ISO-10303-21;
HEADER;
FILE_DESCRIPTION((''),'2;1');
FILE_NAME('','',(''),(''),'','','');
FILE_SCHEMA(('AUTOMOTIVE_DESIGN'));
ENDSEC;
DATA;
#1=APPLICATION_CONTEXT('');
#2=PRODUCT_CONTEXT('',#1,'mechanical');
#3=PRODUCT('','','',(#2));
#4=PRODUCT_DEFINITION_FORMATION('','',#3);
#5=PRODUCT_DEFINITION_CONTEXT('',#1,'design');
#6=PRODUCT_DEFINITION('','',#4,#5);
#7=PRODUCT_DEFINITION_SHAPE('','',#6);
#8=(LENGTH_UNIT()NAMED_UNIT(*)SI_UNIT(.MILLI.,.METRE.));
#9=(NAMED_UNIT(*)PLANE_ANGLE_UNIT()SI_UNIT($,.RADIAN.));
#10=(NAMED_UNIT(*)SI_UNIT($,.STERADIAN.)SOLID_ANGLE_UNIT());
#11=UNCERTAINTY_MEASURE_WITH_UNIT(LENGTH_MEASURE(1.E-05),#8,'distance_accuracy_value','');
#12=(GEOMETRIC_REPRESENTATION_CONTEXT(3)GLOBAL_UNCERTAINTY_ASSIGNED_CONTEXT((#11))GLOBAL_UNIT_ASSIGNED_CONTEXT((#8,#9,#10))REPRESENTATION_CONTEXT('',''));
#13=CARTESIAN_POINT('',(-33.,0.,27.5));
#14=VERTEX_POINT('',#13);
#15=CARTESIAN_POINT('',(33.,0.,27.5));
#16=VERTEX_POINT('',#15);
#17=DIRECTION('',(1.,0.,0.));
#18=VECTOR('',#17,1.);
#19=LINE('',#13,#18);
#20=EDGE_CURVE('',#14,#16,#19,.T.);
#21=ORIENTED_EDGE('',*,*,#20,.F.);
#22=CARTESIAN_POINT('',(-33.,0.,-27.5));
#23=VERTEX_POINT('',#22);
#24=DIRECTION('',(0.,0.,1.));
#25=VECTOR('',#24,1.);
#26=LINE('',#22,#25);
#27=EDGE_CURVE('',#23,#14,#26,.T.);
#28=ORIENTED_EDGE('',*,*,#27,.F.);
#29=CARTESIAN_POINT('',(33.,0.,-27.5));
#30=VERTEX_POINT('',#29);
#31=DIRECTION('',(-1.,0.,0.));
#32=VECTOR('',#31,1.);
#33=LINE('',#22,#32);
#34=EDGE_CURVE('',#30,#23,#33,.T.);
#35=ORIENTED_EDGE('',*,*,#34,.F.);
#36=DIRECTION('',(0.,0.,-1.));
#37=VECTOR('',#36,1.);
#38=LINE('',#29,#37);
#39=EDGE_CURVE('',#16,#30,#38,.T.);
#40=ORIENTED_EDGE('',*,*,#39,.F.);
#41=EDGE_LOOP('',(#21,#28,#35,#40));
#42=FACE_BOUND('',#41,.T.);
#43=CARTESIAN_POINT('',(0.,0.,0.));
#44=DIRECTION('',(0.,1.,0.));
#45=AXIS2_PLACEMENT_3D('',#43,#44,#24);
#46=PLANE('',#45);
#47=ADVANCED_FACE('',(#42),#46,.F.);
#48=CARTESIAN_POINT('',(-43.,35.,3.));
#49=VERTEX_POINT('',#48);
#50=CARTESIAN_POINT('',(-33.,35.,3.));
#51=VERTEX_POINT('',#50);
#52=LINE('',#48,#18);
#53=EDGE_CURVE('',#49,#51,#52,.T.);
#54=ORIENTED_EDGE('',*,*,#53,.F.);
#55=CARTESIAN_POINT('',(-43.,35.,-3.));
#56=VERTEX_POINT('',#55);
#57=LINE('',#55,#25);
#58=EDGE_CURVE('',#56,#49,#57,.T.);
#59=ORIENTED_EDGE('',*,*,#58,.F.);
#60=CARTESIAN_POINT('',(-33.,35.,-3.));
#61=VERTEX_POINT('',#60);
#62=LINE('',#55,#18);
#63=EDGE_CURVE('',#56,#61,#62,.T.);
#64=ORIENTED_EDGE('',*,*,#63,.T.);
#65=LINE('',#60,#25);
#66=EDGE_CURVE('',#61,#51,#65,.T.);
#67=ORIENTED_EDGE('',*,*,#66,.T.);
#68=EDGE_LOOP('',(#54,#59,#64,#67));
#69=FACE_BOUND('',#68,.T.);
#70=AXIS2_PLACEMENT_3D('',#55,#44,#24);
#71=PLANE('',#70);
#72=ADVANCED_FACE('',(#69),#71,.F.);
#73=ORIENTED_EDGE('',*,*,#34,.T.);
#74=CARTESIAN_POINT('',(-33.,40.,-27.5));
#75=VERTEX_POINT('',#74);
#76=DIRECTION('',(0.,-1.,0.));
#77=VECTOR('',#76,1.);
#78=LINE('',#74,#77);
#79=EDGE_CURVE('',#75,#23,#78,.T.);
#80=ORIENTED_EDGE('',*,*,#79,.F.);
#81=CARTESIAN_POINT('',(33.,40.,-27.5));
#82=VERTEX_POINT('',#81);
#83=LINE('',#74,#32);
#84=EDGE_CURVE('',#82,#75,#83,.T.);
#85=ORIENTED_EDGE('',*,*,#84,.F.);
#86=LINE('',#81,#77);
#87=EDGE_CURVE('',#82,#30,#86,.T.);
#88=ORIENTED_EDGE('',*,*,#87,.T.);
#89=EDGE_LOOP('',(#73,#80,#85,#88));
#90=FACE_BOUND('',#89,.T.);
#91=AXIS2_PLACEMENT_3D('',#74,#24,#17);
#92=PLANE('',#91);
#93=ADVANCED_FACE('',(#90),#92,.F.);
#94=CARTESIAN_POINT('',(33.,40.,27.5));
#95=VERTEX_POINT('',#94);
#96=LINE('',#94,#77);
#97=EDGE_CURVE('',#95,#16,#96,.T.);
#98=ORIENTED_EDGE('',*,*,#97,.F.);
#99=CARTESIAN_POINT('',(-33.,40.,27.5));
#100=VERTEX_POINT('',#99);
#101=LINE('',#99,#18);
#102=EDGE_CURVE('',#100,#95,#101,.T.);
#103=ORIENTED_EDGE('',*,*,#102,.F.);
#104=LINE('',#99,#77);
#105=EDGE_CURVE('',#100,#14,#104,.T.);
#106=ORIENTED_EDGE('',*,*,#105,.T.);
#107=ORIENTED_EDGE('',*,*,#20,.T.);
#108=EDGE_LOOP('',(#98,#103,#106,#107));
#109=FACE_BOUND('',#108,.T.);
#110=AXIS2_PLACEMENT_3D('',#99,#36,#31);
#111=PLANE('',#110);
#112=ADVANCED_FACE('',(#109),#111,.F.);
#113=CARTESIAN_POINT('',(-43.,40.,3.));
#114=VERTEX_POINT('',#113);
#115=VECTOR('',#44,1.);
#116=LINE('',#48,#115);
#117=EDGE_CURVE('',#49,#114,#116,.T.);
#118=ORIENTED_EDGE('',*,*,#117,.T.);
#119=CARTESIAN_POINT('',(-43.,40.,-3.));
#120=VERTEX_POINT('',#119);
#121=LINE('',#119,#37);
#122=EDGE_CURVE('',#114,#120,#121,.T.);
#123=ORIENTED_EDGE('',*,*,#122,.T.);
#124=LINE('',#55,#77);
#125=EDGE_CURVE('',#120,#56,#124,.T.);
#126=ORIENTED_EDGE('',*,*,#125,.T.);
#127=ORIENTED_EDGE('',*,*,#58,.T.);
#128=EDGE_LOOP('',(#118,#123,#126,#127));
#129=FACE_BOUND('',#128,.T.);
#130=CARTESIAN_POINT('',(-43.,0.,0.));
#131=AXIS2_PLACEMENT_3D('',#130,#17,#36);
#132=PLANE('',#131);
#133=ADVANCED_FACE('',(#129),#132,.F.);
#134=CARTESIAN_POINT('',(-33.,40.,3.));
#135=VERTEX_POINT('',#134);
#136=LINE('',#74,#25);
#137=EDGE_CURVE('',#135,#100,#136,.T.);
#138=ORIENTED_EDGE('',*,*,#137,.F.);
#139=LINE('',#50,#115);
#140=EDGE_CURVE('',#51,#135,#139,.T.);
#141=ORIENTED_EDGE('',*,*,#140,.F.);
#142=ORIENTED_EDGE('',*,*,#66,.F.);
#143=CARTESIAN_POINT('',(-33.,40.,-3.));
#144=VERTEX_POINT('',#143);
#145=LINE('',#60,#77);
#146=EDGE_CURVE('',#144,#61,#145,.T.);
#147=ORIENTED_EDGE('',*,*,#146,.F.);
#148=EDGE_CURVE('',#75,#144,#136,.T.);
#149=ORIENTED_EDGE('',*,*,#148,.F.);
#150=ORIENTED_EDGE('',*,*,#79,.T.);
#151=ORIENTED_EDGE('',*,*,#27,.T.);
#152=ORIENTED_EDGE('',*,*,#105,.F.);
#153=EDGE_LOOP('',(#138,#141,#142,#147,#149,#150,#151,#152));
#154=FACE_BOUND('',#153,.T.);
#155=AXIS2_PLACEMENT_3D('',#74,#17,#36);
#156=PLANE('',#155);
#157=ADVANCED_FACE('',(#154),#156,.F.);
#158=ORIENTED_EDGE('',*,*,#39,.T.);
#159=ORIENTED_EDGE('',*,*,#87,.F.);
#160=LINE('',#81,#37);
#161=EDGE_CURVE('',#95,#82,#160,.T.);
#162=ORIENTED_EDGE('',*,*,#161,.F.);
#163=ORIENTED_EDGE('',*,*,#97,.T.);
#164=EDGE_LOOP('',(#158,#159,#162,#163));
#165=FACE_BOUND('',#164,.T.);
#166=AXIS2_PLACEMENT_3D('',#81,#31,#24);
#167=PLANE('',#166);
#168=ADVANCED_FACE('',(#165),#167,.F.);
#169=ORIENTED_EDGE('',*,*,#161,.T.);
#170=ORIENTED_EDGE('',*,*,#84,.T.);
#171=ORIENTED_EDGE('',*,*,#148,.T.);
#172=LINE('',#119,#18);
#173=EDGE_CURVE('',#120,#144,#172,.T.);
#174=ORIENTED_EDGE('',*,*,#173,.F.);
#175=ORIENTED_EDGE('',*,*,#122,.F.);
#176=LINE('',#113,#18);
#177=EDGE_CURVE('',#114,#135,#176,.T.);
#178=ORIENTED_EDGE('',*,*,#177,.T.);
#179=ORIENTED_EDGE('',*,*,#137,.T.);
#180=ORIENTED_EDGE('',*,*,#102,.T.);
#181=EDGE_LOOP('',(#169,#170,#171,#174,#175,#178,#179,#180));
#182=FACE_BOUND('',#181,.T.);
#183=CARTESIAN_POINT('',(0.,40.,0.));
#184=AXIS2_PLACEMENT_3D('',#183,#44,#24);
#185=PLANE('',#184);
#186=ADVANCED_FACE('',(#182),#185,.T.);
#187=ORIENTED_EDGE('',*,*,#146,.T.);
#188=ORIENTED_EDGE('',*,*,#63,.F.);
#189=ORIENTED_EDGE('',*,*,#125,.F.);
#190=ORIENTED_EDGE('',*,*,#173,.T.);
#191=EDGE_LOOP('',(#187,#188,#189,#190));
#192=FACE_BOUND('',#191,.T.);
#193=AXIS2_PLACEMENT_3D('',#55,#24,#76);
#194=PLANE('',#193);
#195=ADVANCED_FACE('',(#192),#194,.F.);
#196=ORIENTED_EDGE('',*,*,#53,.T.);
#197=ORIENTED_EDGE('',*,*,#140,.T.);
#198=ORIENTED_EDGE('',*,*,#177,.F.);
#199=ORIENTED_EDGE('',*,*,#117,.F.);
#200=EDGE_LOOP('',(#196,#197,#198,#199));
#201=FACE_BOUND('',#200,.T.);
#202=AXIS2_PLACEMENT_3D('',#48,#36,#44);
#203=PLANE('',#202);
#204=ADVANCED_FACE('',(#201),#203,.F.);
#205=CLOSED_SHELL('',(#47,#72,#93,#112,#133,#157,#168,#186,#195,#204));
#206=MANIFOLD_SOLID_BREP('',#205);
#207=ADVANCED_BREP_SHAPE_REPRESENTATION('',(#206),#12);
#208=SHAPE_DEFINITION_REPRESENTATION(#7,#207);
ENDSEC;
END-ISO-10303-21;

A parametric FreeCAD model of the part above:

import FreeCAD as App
import Part
import Sketcher

doc = App.newDocument("Part")
body = doc.addObject("PartDesign::Body", "Body")

sketch1 = body.newObject("Sketcher::SketchObject", "Sketch")
sketch1.AttachmentSupport = (doc.getObject("XZ_Plane"), [""])
sketch1.MapMode = "FlatFace"
sketch1.addGeometry(Part.LineSegment(App.Vector(-33, -27.5, 0), App.Vector(-33, 27.5, 0)), False)
sketch1.addGeometry(Part.LineSegment(App.Vector(-33, 27.5, 0), App.Vector(33, 27.5, 0)), False)
sketch1.addGeometry(Part.LineSegment(App.Vector(33, 27.5, 0), App.Vector(33, -27.5, 0)), False)
sketch1.addGeometry(Part.LineSegment(App.Vector(33, -27.5, 0), App.Vector(-33, -27.5, 0)), False)
sketch1.addConstraint(Sketcher.Constraint("Coincident", 0, 2, 1, 1))
sketch1.addConstraint(Sketcher.Constraint("Coincident", 1, 2, 2, 1))
sketch1.addConstraint(Sketcher.Constraint("Coincident", 2, 2, 3, 1))
sketch1.addConstraint(Sketcher.Constraint("Coincident", 3, 2, 0, 1))
sketch1.addConstraint(Sketcher.Constraint("Vertical", 0))
sketch1.addConstraint(Sketcher.Constraint("Horizontal", 1))
sketch1.addConstraint(Sketcher.Constraint("Vertical", 2))
sketch1.addConstraint(Sketcher.Constraint("Horizontal", 3))
sketch1.addConstraint(Sketcher.Constraint("Symmetric", 0, 2, 2, 2, -1, 1))
sketch1.addConstraint(Sketcher.Constraint("DistanceX", 1, 1, 1, 2, 66.0))
sketch1.addConstraint(Sketcher.Constraint("DistanceY", 0, 1, 0, 2, 55.0))
pad1 = body.newObject("PartDesign::Pad", "Pad")
pad1.Profile = sketch1
pad1.Length = 40
pad1.Reversed = True

sketch2 = body.newObject("Sketcher::SketchObject", "Sketch001")
sketch2.AttachmentSupport = (doc.getObject("YZ_Plane"), [""])
sketch2.MapMode = "FlatFace"
sketch2.AttachmentOffset = App.Placement(App.Vector(0, 0, -33), App.Rotation())
sketch2.addGeometry(Part.LineSegment(App.Vector(40, -3, 0), App.Vector(35, -3, 0)), False)
sketch2.addGeometry(Part.LineSegment(App.Vector(35, -3, 0), App.Vector(35, 3, 0)), False)
sketch2.addGeometry(Part.LineSegment(App.Vector(35, 3, 0), App.Vector(40, 3, 0)), False)
sketch2.addGeometry(Part.LineSegment(App.Vector(40, 3, 0), App.Vector(40, -3, 0)), False)
sketch2.addConstraint(Sketcher.Constraint("Coincident", 0, 2, 1, 1))
sketch2.addConstraint(Sketcher.Constraint("Coincident", 1, 2, 2, 1))
sketch2.addConstraint(Sketcher.Constraint("Coincident", 2, 2, 3, 1))
sketch2.addConstraint(Sketcher.Constraint("Coincident", 3, 2, 0, 1))
sketch2.addConstraint(Sketcher.Constraint("Horizontal", 0))
sketch2.addConstraint(Sketcher.Constraint("Vertical", 1))
sketch2.addConstraint(Sketcher.Constraint("Horizontal", 2))
sketch2.addConstraint(Sketcher.Constraint("Vertical", 3))
sketch2.addConstraint(Sketcher.Constraint("DistanceX", 0, 2, 0, 1, 5.0))
sketch2.addConstraint(Sketcher.Constraint("DistanceY", 1, 1, 1, 2, 6.0))
sketch2.addConstraint(Sketcher.Constraint("DistanceX", -1, 1, 0, 2, 35.0))
sketch2.addConstraint(Sketcher.Constraint("DistanceY", 0, 2, -1, 1, 3.0))
pad2 = body.newObject("PartDesign::Pad", "Pad001")
pad2.Profile = sketch2
pad2.Length = 10
pad2.Reversed = True

doc.recompute()
